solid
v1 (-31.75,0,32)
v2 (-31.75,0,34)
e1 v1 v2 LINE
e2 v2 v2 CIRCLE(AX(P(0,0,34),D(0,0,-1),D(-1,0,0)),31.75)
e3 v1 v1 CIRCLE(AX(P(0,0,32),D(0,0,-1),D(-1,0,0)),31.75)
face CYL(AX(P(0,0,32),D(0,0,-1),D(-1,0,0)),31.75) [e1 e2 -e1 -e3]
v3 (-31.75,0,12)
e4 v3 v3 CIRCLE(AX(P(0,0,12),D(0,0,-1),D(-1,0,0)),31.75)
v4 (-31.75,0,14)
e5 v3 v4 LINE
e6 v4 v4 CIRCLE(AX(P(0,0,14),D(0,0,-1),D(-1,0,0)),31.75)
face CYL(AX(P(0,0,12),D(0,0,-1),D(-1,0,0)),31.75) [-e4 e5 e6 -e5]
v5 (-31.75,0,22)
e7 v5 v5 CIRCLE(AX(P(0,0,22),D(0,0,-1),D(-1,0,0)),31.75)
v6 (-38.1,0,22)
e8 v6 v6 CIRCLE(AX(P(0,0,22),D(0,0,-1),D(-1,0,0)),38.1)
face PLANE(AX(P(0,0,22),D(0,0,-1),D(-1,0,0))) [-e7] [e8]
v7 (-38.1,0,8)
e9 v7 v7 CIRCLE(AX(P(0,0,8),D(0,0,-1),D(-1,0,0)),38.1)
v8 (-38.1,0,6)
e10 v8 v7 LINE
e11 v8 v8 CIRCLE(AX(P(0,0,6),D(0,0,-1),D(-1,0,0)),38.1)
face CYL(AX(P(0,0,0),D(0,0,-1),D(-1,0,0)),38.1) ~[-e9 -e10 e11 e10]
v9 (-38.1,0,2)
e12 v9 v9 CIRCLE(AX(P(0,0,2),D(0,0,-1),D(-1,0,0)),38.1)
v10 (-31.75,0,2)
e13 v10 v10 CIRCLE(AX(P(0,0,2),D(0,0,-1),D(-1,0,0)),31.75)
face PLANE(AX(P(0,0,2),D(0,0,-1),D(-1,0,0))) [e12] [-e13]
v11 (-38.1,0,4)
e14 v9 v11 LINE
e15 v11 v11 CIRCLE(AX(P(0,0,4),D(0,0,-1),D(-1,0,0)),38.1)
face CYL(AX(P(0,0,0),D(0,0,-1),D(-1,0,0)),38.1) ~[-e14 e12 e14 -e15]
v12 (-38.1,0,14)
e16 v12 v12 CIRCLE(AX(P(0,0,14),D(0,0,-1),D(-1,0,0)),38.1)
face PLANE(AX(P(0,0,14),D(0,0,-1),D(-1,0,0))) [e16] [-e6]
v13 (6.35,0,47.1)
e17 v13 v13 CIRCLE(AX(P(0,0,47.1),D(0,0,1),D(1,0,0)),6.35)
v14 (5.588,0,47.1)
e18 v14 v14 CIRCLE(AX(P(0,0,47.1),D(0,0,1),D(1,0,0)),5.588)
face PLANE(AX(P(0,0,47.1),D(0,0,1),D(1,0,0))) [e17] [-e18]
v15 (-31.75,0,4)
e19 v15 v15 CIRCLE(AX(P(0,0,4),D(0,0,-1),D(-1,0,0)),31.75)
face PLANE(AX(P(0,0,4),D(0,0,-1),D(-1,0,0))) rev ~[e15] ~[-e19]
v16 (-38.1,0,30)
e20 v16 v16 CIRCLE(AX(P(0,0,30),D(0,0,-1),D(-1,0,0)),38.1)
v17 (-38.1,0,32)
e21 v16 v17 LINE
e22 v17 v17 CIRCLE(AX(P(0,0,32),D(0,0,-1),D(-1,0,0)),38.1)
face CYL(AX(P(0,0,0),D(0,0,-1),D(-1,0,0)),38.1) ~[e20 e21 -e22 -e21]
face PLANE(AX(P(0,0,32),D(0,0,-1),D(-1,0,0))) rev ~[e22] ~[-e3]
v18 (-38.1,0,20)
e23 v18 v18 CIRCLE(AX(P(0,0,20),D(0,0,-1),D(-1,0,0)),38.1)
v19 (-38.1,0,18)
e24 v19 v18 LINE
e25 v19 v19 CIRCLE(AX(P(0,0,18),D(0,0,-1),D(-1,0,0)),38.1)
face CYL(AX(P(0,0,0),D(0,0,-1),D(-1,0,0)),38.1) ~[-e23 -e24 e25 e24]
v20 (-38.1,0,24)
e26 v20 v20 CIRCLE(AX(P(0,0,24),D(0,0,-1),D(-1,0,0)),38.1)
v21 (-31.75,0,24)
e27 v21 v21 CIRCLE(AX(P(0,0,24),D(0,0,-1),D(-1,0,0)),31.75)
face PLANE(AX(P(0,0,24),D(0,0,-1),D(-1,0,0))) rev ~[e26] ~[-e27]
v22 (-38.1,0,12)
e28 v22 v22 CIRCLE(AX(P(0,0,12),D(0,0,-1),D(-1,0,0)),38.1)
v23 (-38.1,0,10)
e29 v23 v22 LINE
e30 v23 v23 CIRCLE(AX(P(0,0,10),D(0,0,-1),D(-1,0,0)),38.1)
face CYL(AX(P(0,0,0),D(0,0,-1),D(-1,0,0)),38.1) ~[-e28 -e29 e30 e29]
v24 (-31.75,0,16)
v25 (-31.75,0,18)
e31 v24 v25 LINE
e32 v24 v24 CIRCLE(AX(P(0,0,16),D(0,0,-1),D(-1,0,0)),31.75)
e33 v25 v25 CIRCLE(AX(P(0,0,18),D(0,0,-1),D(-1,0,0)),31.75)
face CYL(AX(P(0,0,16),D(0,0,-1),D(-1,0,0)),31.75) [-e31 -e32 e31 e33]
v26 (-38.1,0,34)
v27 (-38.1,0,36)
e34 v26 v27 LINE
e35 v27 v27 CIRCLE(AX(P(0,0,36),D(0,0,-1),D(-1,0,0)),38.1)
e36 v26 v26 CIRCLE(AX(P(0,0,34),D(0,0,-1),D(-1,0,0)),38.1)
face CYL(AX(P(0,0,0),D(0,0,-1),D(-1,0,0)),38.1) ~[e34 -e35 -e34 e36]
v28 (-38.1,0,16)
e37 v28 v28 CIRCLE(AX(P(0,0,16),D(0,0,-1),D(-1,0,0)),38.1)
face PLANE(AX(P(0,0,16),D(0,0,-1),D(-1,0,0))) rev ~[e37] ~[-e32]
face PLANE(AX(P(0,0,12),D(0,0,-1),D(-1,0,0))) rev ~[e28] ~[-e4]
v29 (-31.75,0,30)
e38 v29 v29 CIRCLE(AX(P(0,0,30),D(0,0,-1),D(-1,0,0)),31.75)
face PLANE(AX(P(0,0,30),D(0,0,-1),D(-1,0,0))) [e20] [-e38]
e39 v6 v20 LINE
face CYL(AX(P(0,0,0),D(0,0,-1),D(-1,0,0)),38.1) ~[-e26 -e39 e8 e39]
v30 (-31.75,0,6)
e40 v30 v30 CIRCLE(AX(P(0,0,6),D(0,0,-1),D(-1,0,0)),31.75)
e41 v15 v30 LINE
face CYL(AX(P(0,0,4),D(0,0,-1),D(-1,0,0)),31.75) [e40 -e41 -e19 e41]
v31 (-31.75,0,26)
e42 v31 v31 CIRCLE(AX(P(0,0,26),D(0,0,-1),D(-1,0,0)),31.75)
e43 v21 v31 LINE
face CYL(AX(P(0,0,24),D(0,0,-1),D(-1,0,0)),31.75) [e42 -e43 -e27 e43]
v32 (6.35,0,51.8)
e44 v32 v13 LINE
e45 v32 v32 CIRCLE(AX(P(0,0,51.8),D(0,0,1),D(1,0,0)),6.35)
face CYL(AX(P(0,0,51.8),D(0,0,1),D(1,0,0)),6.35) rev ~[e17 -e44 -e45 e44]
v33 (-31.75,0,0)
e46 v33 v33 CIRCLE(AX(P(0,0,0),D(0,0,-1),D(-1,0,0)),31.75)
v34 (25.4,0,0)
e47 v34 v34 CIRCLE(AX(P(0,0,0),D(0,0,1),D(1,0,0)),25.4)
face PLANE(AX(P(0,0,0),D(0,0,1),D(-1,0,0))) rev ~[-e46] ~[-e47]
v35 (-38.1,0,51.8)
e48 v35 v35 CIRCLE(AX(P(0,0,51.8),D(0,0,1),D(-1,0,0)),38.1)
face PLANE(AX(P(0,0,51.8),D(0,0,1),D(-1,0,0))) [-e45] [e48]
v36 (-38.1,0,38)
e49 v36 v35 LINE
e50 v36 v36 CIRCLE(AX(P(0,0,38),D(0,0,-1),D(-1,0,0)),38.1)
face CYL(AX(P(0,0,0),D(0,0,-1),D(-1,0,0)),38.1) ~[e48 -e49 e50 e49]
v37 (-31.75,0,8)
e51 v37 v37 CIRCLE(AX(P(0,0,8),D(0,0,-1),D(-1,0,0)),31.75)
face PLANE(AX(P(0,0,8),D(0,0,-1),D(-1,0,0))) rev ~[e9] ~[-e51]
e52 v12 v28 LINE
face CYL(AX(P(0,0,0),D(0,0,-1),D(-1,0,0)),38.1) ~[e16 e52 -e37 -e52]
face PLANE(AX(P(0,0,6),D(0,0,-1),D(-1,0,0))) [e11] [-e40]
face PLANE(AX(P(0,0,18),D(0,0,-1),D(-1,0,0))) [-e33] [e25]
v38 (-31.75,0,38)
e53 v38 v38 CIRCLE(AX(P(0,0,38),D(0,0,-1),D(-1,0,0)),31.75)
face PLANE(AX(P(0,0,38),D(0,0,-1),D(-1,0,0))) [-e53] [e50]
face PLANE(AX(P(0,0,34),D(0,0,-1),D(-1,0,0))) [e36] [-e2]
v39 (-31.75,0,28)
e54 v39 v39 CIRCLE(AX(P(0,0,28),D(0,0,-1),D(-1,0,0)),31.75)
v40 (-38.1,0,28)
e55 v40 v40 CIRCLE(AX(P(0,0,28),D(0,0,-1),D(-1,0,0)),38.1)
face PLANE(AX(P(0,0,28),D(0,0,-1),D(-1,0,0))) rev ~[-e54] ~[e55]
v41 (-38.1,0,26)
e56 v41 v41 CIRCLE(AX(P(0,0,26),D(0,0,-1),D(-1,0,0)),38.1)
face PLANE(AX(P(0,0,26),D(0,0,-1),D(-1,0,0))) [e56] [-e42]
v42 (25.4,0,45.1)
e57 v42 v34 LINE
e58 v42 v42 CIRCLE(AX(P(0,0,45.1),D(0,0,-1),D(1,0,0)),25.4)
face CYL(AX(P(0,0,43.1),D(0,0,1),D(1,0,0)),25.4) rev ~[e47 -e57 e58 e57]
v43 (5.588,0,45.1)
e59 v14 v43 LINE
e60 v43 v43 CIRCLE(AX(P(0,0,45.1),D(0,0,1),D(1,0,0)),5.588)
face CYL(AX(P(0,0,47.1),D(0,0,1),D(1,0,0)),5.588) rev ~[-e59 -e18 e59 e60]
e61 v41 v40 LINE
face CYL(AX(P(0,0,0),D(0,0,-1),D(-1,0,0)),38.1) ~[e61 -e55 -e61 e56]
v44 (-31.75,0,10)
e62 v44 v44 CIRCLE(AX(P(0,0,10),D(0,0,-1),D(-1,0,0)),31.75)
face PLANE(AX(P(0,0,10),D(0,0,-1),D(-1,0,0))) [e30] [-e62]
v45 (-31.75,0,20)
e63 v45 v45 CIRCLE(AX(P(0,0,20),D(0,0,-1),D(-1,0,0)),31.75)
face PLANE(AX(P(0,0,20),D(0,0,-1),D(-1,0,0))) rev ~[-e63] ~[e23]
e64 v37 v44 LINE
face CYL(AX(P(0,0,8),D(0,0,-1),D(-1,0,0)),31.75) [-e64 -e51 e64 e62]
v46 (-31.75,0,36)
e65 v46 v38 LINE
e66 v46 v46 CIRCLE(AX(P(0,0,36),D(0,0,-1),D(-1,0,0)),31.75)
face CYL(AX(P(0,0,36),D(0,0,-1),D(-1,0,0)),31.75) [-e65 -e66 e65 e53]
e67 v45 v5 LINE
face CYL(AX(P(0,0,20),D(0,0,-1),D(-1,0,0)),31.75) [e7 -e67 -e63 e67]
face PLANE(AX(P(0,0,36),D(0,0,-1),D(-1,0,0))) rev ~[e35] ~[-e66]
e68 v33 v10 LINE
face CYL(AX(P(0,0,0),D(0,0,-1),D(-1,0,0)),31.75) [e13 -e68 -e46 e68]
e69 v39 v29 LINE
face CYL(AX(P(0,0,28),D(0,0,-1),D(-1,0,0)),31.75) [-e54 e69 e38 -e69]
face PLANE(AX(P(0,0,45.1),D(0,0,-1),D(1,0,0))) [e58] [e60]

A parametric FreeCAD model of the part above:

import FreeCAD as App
import Part
import Sketcher


def add_polygon(sketch, points):
    """Adds a closed chain of lines whose ends are joined by coincident constraints."""
    first, n = sketch.GeometryCount, len(points)
    for a, b in zip(points, points[1:] + points[:1]):
        sketch.addGeometry(Part.LineSegment(App.Vector(*a, 0), App.Vector(*b, 0)), False)
    for i in range(n):
        sketch.addConstraint(Sketcher.Constraint("Coincident", first + i, 2, first + (i + 1) % n, 1))

doc = App.newDocument("Part")
body = doc.addObject("PartDesign::Body", "Body")

# Sketch on XY plane
sketch1 = body.newObject("Sketcher::SketchObject", "Sketch")
sketch1.AttachmentSupport = (doc.getObject("XY_Plane"), [""])
sketch1.MapMode = "FlatFace"
sketch1.addGeometry(Part.Circle(App.Vector(0, 0, 0), App.Vector(0, 0, 1), 38.1), False)
sketch1.addConstraint([
    Sketcher.Constraint("Coincident", 0, 3, -1, 1),
    Sketcher.Constraint("Diameter", 0, 76.2),
])
pad1 = body.newObject("PartDesign::Pad", "Pad")
pad1.Profile = sketch1
pad1.Length = 51.8

# Sketch on XY plane
sketch2 = body.newObject("Sketcher::SketchObject", "Sketch001")
sketch2.AttachmentSupport = (doc.getObject("XY_Plane"), [""])
sketch2.MapMode = "FlatFace"
sketch2.AttachmentOffset = App.Placement(App.Vector(0, 0, 51.8), App.Rotation())
sketch2.addGeometry(Part.Circle(App.Vector(0, 0, 0), App.Vector(0, 0, 1), 6.35), False)
sketch2.addConstraint([
    Sketcher.Constraint("Coincident", 0, 3, -1, 1),
    Sketcher.Constraint("Diameter", 0, 12.7),
])
pocket1 = body.newObject("PartDesign::Pocket", "Pocket")
pocket1.Profile = sketch2
pocket1.Length = 4.7

# Sketch on XY plane
sketch3 = body.newObject("Sketcher::SketchObject", "Sketch002")
sketch3.AttachmentSupport = (doc.getObject("XY_Plane"), [""])
sketch3.MapMode = "FlatFace"
sketch3.AttachmentOffset = App.Placement(App.Vector(0, 0, 47.1), App.Rotation())
sketch3.addGeometry(Part.Circle(App.Vector(0, 0, 0), App.Vector(0, 0, 1), 5.588), False)
sketch3.addConstraint([
    Sketcher.Constraint("Coincident", 0, 3, -1, 1),
    Sketcher.Constraint("Diameter", 0, 11.176),
])
pocket2 = body.newObject("PartDesign::Pocket", "Pocket001")
pocket2.Profile = sketch3
pocket2.Length = 4

# Sketch on XY plane
sketch4 = body.newObject("Sketcher::SketchObject", "Sketch003")
sketch4.AttachmentSupport = (doc.getObject("XY_Plane"), [""])
sketch4.MapMode = "FlatFace"
sketch4.AttachmentOffset = App.Placement(App.Vector(0, 0, 43.1), App.Rotation())
sketch4.addGeometry(Part.Circle(App.Vector(0, 0, 0), App.Vector(0, 0, 1), 25.4), False)
sketch4.addConstraint([
    Sketcher.Constraint("Coincident", 0, 3, -1, 1),
    Sketcher.Constraint("Diameter", 0, 50.8),
])
pocket3 = body.newObject("PartDesign::Pocket", "Pocket002")
pocket3.Profile = sketch4
pocket3.Length = 43.1

# Sketch on XY plane
sketch5 = body.newObject("Sketcher::SketchObject", "Sketch004")
sketch5.AttachmentSupport = (doc.getObject("XY_Plane"), [""])
sketch5.MapMode = "FlatFace"
add_polygon(sketch5, [(51.057, 51.057), (51.057, -51.057), (-51.057, -51.057), (-51.057, 51.057)])  # lines 0-3
sketch5.addGeometry(Part.Circle(App.Vector(0, 0, 0), App.Vector(0, 0, 1), 31.75), False)  # 4
sketch5.addConstraint([
    Sketcher.Constraint("Vertical", 0),
    Sketcher.Constraint("Horizontal", 1),
    Sketcher.Constraint("Vertical", 2),
    Sketcher.Constraint("Horizontal", 3),
    Sketcher.Constraint("Coincident", 4, 3, -1, 1),
    Sketcher.Constraint("Symmetric", 0, 2, 2, 2, -1, 1),
    Sketcher.Constraint("Equal", 3, 0),
    Sketcher.Constraint("Diameter", 4, 63.5),
    Sketcher.Constraint("DistanceX", 1, 2, 1, 1, 102.114),
])
pocket4 = body.newObject("PartDesign::Pocket", "Pocket003")
pocket4.Profile = sketch5
pocket4.Length = 2
pocket4.Reversed = True
doc.recompute()

linearpattern = body.newObject("PartDesign::LinearPattern", "LinearPattern")
linearpattern.Originals = [pocket4]
linearpattern.Direction = (doc.getObject("Z_Axis"), [""])
linearpattern.Mode = "offset"
linearpattern.Offset = 4
linearpattern.Occurrences = 10
body.Tip = linearpattern

# Sketch on XY plane
sketch6 = body.newObject("Sketcher::SketchObject", "Sketch005")
sketch6.AttachmentSupport = (doc.getObject("XY_Plane"), [""])
sketch6.MapMode = "FlatFace"
sketch6.AttachmentOffset = App.Placement(App.Vector(0, 0, 45.1), App.Rotation())
sketch6.addGeometry(Part.Circle(App.Vector(0, 0, 0), App.Vector(0, 0, 1), 25.4), False)
sketch6.addConstraint([
    Sketcher.Constraint("Coincident", 0, 3, -1, 1),
    Sketcher.Constraint("Diameter", 0, 50.8),
])
pocket5 = body.newObject("PartDesign::Pocket", "Pocket004")
pocket5.Profile = sketch6
pocket5.Length = 2

doc.recompute()
